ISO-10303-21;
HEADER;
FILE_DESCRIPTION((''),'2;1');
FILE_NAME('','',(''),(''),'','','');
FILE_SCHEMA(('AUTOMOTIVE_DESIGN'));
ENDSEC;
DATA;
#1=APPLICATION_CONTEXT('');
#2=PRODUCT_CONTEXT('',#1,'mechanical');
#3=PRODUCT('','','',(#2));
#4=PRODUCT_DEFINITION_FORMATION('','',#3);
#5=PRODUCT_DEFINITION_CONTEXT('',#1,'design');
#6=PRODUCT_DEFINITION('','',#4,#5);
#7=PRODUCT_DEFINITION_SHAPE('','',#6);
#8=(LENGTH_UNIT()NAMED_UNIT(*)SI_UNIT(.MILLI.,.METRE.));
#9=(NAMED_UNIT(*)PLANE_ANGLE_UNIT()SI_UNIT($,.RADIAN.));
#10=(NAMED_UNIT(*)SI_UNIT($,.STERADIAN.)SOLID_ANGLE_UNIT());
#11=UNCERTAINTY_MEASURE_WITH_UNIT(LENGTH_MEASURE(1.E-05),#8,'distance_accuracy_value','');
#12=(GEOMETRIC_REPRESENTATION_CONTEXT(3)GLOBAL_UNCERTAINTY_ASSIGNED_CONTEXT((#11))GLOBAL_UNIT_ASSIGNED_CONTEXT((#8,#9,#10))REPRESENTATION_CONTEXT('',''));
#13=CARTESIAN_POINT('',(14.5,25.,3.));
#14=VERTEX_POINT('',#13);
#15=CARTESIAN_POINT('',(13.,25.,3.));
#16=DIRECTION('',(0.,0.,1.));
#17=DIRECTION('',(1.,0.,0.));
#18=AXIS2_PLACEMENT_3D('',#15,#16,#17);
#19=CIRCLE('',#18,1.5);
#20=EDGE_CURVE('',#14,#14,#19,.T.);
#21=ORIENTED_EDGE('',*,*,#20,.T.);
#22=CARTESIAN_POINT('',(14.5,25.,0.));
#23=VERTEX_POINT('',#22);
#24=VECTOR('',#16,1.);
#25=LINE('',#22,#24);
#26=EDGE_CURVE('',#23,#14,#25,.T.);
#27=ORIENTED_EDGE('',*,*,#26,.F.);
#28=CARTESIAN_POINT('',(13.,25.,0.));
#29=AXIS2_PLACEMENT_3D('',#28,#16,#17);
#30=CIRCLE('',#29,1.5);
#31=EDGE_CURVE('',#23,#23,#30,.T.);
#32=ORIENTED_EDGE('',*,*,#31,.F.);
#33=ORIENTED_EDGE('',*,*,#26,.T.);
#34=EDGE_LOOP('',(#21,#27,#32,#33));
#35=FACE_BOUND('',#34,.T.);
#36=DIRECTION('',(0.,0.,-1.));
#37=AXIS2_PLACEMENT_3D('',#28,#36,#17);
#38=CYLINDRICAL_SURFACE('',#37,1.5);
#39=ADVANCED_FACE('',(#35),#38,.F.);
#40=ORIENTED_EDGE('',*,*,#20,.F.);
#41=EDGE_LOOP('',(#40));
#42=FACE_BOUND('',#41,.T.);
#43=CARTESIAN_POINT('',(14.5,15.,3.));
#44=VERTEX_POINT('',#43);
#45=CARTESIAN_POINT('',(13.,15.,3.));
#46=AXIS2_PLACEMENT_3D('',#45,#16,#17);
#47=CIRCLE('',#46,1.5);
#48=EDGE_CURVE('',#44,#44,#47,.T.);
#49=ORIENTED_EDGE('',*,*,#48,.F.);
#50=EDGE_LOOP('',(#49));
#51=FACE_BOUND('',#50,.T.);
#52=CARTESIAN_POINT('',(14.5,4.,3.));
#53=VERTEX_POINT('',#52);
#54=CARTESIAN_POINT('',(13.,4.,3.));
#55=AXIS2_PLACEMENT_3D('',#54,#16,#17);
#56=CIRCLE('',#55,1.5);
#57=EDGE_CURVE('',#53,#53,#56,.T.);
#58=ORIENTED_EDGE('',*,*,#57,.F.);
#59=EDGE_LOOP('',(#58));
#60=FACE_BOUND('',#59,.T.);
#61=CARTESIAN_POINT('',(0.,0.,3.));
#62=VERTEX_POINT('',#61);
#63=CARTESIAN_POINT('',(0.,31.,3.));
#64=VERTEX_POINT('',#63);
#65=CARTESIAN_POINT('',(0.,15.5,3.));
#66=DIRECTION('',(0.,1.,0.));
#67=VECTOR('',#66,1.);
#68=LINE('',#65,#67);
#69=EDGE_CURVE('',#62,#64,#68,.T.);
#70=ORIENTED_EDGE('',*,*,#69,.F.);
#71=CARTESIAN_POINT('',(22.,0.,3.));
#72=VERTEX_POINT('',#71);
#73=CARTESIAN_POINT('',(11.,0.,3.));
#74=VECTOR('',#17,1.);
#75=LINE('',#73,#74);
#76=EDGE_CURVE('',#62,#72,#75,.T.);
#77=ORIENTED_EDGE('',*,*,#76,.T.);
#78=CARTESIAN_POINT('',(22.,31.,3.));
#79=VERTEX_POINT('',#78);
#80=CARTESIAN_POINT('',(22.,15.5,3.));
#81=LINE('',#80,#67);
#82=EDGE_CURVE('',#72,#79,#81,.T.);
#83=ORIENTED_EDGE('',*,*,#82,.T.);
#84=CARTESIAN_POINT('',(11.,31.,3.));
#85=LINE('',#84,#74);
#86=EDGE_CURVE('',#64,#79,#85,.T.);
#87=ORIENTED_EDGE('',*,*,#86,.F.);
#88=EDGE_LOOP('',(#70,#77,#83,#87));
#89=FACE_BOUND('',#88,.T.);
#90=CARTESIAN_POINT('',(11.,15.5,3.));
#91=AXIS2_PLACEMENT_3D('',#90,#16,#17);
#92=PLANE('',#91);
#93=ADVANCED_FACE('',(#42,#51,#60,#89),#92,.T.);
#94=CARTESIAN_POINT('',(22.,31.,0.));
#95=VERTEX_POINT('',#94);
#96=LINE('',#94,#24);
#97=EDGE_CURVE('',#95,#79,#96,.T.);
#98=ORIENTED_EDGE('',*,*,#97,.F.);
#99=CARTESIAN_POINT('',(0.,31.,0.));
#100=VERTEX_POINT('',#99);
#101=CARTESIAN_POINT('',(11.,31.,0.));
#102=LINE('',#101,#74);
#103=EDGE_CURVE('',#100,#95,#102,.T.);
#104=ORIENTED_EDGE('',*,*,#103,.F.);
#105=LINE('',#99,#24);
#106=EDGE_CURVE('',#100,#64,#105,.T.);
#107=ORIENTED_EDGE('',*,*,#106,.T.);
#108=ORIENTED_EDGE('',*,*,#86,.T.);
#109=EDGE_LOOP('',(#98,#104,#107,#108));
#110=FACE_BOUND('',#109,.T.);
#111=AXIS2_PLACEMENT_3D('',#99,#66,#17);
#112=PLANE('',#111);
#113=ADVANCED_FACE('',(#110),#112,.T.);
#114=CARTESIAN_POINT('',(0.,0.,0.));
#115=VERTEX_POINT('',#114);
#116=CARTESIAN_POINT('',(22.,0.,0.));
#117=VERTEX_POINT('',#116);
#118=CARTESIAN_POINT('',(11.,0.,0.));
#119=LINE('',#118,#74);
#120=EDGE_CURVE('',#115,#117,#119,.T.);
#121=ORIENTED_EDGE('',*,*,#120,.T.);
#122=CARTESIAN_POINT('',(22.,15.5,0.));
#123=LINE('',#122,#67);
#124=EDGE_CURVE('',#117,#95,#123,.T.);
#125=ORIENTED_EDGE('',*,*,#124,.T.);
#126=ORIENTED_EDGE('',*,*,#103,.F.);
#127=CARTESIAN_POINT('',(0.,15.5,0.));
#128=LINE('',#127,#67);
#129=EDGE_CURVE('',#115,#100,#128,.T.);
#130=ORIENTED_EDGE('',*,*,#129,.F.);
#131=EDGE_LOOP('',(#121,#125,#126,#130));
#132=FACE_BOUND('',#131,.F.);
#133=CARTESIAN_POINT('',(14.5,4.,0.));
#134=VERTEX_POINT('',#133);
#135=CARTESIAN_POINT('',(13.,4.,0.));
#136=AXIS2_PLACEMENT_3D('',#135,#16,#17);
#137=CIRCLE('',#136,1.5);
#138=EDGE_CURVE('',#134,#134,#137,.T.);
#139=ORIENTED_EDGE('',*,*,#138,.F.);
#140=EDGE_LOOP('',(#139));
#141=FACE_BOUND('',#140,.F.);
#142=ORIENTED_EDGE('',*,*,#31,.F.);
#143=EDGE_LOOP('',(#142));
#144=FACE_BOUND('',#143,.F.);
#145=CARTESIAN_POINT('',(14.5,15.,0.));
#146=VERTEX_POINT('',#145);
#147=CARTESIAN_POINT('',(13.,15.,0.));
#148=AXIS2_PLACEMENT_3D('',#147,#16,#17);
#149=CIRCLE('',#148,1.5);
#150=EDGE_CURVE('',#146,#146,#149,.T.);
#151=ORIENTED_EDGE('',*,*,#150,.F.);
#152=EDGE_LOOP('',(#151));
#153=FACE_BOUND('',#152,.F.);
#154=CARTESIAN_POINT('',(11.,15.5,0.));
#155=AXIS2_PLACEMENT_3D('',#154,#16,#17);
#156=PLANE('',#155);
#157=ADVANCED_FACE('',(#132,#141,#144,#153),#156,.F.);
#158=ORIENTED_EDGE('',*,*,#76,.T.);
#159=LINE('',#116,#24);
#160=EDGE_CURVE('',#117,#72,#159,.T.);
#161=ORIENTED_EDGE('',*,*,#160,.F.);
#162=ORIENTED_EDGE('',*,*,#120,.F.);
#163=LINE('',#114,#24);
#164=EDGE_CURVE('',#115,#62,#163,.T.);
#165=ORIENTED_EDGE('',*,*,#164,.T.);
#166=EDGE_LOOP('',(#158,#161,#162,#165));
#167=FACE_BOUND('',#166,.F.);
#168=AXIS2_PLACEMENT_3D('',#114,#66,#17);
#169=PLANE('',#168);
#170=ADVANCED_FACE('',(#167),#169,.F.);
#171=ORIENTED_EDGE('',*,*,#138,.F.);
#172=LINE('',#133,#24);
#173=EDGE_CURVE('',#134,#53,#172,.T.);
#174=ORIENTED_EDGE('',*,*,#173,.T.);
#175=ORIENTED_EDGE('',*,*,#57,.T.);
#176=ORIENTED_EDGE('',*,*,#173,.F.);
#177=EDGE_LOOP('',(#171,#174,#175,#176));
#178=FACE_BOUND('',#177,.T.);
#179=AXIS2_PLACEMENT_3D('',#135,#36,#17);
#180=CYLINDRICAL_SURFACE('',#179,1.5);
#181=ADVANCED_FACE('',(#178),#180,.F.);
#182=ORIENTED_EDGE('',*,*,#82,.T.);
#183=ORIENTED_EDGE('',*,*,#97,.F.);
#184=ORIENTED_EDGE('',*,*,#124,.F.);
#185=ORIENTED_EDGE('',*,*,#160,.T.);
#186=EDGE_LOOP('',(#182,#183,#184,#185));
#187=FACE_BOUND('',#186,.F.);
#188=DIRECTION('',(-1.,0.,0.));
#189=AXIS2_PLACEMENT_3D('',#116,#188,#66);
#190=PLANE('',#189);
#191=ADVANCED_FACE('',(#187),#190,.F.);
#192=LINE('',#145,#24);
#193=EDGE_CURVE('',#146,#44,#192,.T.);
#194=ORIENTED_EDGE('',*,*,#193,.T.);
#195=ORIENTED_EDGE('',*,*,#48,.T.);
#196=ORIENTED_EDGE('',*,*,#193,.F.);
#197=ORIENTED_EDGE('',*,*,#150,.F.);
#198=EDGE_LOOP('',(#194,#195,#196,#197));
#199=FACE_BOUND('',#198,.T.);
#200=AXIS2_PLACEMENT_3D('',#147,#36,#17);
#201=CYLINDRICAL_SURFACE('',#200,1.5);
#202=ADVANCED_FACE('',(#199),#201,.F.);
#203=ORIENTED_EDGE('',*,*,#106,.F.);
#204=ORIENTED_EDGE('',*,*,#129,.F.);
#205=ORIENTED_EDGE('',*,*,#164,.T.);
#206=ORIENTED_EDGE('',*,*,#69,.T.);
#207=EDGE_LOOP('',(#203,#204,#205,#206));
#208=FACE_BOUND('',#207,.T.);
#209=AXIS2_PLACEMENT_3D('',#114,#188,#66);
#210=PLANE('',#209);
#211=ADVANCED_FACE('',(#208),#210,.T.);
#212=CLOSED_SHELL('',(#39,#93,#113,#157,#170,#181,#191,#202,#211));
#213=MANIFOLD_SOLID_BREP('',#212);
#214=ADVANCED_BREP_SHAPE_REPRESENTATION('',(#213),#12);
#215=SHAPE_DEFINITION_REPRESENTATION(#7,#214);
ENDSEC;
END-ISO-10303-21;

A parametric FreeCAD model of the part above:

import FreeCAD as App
import Part
import Sketcher
from FreeCAD import Vector


def add_polygon(sketch, points):
    """Adds a closed chain of lines whose ends are joined by coincident constraints."""
    first, n = sketch.GeometryCount, len(points)
    for a, b in zip(points, points[1:] + points[:1]):
        sketch.addGeometry(Part.LineSegment(App.Vector(*a, 0), App.Vector(*b, 0)), False)
    for i in range(n):
        sketch.addConstraint(Sketcher.Constraint("Coincident", first + i, 2, first + (i + 1) % n, 1))

doc = App.newDocument("Part")
body = doc.addObject("PartDesign::Body", "Body")

sketch1 = doc.addObject("Sketcher::SketchObject", "Sketch")
body.addObject(sketch1)
sketch1.AttachmentSupport = (doc.XY_Plane, [""])
sketch1.MapMode = "FlatFace"
add_polygon(sketch1, [(0, 31), (0, 0), (22, 0), (22, 31)])
sketch1.addGeometry(Part.Circle(Vector(13, 4, 0), Vector(0, 0, 1), 1.5), False)
sketch1.addGeometry(Part.Circle(Vector(13, 15, 0), Vector(0, 0, 1), 1.5), False)
sketch1.addGeometry(Part.Circle(Vector(13, 25, 0), Vector(0, 0, 1), 1.5), False)
sketch1.addConstraint([
    Sketcher.Constraint("Vertical", 0),
    Sketcher.Constraint("Horizontal", 1),
    Sketcher.Constraint("Vertical", 2),
    Sketcher.Constraint("Horizontal", 3),
    Sketcher.Constraint("Coincident", 0, 2, -1, 1),
    Sketcher.Constraint("Equal", 4, 5),
    Sketcher.Constraint("Equal", 5, 6),
    Sketcher.Constraint("Vertical", 4, 3, 5, 3),
    Sketcher.Constraint("Vertical", 5, 3, 6, 3),
    Sketcher.Constraint("Diameter", 4, 3.0),
    Sketcher.Constraint("DistanceX", 1, 1, 1, 2, 22.0),
    Sketcher.Constraint("DistanceY", 0, 2, 0, 1, 31.0),
    Sketcher.Constraint("DistanceX", -1, 1, 4, 3, 13.0),
    Sketcher.Constraint("DistanceY", -1, 1, 4, 3, 4.0),
    Sketcher.Constraint("DistanceY", -1, 1, 5, 3, 15.0),
    Sketcher.Constraint("DistanceY", -1, 1, 6, 3, 25.0),
])
pad1 = doc.addObject("PartDesign::Pad", "Pad")
body.addObject(pad1)
pad1.Profile = sketch1
pad1.Length = 3

doc.recompute()
